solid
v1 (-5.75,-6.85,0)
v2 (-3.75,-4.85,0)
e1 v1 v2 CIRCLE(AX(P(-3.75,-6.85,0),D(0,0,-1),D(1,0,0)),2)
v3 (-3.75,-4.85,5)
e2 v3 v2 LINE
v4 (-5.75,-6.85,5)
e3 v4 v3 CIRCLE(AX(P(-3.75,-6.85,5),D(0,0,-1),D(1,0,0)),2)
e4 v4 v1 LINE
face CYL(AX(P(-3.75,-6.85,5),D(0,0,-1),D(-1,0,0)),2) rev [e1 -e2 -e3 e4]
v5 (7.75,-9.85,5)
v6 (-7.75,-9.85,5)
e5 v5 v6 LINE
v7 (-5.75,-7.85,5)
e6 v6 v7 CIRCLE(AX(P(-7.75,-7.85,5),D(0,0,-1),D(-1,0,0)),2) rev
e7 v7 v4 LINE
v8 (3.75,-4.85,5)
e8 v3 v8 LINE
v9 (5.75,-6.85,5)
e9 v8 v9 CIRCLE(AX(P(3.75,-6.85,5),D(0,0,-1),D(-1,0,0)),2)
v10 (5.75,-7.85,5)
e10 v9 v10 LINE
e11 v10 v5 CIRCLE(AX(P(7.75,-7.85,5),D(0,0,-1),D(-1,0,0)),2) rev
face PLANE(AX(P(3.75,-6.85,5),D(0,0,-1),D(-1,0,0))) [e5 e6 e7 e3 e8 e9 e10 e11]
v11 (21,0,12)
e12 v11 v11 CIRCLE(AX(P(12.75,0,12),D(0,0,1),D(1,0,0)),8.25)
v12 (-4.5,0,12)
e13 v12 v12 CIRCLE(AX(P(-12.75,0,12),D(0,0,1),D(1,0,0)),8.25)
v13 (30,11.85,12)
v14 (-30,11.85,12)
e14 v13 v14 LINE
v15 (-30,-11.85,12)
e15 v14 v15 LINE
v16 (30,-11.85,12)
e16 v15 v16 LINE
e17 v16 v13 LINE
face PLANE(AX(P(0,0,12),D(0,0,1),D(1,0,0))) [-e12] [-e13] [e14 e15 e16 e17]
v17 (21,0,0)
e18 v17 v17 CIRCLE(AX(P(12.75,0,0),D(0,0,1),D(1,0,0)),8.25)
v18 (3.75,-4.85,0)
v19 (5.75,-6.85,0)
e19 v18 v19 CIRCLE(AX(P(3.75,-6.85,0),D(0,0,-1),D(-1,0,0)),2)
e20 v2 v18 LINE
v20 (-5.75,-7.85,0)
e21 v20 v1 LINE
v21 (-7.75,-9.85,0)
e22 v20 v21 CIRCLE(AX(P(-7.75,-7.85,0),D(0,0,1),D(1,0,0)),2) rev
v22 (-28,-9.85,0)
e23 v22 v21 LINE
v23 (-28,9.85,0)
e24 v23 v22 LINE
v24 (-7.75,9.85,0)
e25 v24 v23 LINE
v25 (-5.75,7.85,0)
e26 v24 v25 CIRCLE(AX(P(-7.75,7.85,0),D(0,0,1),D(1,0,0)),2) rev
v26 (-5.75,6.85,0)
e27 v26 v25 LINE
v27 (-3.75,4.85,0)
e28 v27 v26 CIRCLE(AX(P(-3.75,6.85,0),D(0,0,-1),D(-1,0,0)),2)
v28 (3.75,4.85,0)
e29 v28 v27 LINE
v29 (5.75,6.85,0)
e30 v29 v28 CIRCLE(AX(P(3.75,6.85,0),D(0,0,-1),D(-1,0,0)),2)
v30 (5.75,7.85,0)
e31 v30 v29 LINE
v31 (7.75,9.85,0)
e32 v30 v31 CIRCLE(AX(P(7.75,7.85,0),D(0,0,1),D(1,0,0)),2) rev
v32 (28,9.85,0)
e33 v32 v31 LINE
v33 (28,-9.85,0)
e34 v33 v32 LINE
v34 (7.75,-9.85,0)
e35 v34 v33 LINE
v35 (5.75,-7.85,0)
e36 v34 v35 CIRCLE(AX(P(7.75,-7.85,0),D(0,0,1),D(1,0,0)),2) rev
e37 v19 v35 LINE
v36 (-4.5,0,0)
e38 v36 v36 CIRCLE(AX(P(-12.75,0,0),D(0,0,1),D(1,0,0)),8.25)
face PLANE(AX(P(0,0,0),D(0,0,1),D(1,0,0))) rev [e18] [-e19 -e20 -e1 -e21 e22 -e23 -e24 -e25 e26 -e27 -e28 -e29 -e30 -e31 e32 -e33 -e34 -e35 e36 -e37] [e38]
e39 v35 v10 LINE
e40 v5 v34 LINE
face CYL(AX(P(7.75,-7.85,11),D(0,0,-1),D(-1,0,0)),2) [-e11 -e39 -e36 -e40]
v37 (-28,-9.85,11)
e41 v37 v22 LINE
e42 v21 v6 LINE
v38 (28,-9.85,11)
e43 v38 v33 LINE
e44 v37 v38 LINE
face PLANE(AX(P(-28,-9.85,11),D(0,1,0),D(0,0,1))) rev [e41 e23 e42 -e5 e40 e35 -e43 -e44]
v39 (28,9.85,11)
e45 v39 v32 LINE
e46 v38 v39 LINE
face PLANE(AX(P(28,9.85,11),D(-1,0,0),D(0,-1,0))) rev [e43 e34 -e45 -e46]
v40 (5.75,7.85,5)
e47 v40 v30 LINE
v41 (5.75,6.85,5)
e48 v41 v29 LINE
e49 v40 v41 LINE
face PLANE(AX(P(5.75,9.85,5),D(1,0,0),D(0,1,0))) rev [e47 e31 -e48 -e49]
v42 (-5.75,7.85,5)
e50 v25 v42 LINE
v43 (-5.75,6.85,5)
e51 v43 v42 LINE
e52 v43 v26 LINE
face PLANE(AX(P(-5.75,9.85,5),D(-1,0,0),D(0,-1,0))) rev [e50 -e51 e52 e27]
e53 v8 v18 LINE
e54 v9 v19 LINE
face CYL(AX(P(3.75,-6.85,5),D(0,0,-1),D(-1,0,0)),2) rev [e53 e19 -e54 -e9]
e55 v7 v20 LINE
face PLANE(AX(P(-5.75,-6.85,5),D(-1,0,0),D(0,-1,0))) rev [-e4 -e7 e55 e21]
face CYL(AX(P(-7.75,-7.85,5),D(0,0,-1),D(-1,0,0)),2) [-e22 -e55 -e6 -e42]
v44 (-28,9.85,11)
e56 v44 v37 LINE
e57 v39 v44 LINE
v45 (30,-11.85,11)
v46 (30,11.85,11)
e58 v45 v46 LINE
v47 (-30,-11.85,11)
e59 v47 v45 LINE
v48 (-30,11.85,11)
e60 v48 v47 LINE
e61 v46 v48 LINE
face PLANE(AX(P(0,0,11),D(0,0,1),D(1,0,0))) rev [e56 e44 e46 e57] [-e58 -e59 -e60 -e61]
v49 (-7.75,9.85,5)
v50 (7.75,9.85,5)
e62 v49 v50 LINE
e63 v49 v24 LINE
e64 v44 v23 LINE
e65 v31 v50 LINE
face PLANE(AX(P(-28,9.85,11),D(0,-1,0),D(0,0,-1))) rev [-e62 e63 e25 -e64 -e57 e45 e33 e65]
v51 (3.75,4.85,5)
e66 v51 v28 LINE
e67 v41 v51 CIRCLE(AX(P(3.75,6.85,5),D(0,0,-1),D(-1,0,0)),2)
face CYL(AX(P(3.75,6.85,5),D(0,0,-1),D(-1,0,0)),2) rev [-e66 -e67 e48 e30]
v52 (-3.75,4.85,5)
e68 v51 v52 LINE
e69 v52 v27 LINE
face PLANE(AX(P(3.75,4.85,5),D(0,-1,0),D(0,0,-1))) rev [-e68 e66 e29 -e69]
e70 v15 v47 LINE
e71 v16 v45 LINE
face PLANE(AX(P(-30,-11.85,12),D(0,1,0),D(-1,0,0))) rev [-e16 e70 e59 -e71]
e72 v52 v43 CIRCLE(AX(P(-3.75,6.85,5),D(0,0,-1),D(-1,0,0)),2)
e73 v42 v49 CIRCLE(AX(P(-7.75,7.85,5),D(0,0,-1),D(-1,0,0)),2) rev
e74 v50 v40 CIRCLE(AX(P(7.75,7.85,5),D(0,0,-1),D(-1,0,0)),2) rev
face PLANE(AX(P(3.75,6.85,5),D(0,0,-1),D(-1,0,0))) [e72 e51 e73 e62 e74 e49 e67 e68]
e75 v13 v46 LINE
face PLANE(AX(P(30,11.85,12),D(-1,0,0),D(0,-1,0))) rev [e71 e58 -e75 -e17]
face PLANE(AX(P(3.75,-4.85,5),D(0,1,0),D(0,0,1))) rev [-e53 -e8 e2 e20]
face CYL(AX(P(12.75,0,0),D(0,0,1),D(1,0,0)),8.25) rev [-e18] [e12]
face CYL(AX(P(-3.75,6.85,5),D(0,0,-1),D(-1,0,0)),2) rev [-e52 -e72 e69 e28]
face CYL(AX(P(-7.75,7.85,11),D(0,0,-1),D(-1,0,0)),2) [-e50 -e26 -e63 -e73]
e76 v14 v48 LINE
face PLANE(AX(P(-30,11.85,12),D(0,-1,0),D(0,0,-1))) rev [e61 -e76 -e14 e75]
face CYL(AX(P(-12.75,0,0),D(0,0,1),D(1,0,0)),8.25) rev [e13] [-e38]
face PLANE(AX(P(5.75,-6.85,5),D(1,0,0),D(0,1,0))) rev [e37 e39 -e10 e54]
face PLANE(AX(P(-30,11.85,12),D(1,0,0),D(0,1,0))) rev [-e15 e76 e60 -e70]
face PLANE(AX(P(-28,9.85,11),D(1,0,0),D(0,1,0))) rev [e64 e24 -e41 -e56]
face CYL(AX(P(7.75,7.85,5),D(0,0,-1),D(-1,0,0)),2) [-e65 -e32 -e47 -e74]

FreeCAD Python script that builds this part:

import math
import FreeCAD as App
import Part
import Sketcher

V = App.Vector


def edges_at(feature, points):
    """Names of the edges that pass closest to the given points."""
    edges = feature.Shape.Edges
    near = lambda p: min(range(len(edges)), key=lambda i: edges[i].distToShape(Part.Vertex(*p))[0])
    return sorted({f"Edge{near(p) + 1}" for p in points})

doc = App.newDocument("Part")
body = doc.addObject("PartDesign::Body", "Body")

# Sketch on XY plane
sketch1 = body.newObject("Sketcher::SketchObject", "Sketch")
sketch1.AttachmentSupport = (doc.getObject("XY_Plane"), [""])
sketch1.MapMode = "FlatFace"
sketch1.addGeometry(Part.LineSegment(V(-28, 10, 0), V(-28, -10, 0)), False)
sketch1.addGeometry(Part.LineSegment(V(-28, -10, 0), V(28, -10, 0)), False)
sketch1.addGeometry(Part.LineSegment(V(28, -10, 0), V(28, 10, 0)), False)
sketch1.addGeometry(Part.LineSegment(V(28, 10, 0), V(-28, 10, 0)), False)
sketch1.addConstraint(Sketcher.Constraint("Coincident", 0, 2, 1, 1))
sketch1.addConstraint(Sketcher.Constraint("Coincident", 1, 2, 2, 1))
sketch1.addConstraint(Sketcher.Constraint("Coincident", 2, 2, 3, 1))
sketch1.addConstraint(Sketcher.Constraint("Coincident", 3, 2, 0, 1))
sketch1.addConstraint(Sketcher.Constraint("Vertical", 0))
sketch1.addConstraint(Sketcher.Constraint("Horizontal", 1))
sketch1.addConstraint(Sketcher.Constraint("Vertical", 2))
sketch1.addConstraint(Sketcher.Constraint("Horizontal", 3))
sketch1.addConstraint(Sketcher.Constraint("Symmetric", 0, 2, 2, 2, -1, 1))
sketch1.addConstraint(Sketcher.Constraint("DistanceX", 1, 1, 1, 2, 56.0))
sketch1.addConstraint(Sketcher.Constraint("DistanceY", 0, 2, 0, 1, 19.7))
pad1 = body.newObject("PartDesign::Pad", "Pad")
pad1.Profile = sketch1
pad1.Length = 11

# Sketch on XY plane
sketch2 = body.newObject("Sketcher::SketchObject", "Sketch001")
sketch2.AttachmentSupport = (doc.getObject("XY_Plane"), [""])
sketch2.MapMode = "FlatFace"
sketch2.AttachmentOffset = App.Placement(V(0, 0, 11), App.Rotation())
sketch2.addGeometry(Part.LineSegment(V(-30, 12, 0), V(-30, -12, 0)), False)
sketch2.addGeometry(Part.LineSegment(V(-30, -12, 0), V(30, -12, 0)), False)
sketch2.addGeometry(Part.LineSegment(V(30, -12, 0), V(30, 12, 0)), False)
sketch2.addGeometry(Part.LineSegment(V(30, 12, 0), V(-30, 12, 0)), False)
sketch2.addConstraint(Sketcher.Constraint("Coincident", 0, 2, 1, 1))
sketch2.addConstraint(Sketcher.Constraint("Coincident", 1, 2, 2, 1))
sketch2.addConstraint(Sketcher.Constraint("Coincident", 2, 2, 3, 1))
sketch2.addConstraint(Sketcher.Constraint("Coincident", 3, 2, 0, 1))
sketch2.addConstraint(Sketcher.Constraint("Vertical", 0))
sketch2.addConstraint(Sketcher.Constraint("Horizontal", 1))
sketch2.addConstraint(Sketcher.Constraint("Vertical", 2))
sketch2.addConstraint(Sketcher.Constraint("Horizontal", 3))
sketch2.addConstraint(Sketcher.Constraint("Symmetric", 0, 2, 2, 2, -1, 1))
sketch2.addConstraint(Sketcher.Constraint("DistanceX", 1, 1, 1, 2, 60.0))
sketch2.addConstraint(Sketcher.Constraint("DistanceY", 0, 2, 0, 1, 23.7))
pad2 = body.newObject("PartDesign::Pad", "Pad001")
pad2.Profile = sketch2
pad2.Length = 1

# Sketch on XY plane
sketch3 = body.newObject("Sketcher::SketchObject", "Sketch002")
sketch3.AttachmentSupport = (doc.getObject("XY_Plane"), [""])
sketch3.MapMode = "FlatFace"
sketch3.AttachmentOffset = App.Placement(V(0, 0, 12), App.Rotation())
sketch3.addGeometry(Part.Circle(V(-13, 0, 0), V(0, 0, 1), 8), False)
sketch3.addGeometry(Part.Circle(V(13, 0, 0), V(0, 0, 1), 8), False)
sketch3.addConstraint(Sketcher.Constraint("Equal", 0, 1))
sketch3.addConstraint(Sketcher.Constraint("Symmetric", 0, 3, 1, 3, -1, 1))
sketch3.addConstraint(Sketcher.Constraint("PointOnObject", 0, 3, -1))
sketch3.addConstraint(Sketcher.Constraint("Diameter", 0, 16.5))
sketch3.addConstraint(Sketcher.Constraint("DistanceX", 0, 3, 1, 3, 25.5))
pocket1 = body.newObject("PartDesign::Pocket", "Pocket")
pocket1.Profile = sketch3
pocket1.Type = "ThroughAll"

# Sketch on XY plane
sketch4 = body.newObject("Sketcher::SketchObject", "Sketch003")
sketch4.AttachmentSupport = (doc.getObject("XY_Plane"), [""])
sketch4.MapMode = "FlatFace"
sketch4.addGeometry(Part.LineSegment(V(-5.8, 9.8, 0), V(5.8, 9.8, 0)), False)
sketch4.addGeometry(Part.LineSegment(V(5.8, 9.8, 0), V(5.8, 6.8, 0)), False)
sketch4.addGeometry(Part.ArcOfCircle(Part.Circle(V(3.7, 6.9, 0), V(0, 0, 1), 2), math.radians(-90), math.radians(0)), False)
sketch4.addGeometry(Part.LineSegment(V(3.8, 4.8, 0), V(-3.8, 4.8, 0)), False)
sketch4.addGeometry(Part.ArcOfCircle(Part.Circle(V(-3.7, 6.9, 0), V(0, 0, 1), 2), math.radians(-180), math.radians(-90)), False)
sketch4.addGeometry(Part.LineSegment(V(-5.8, 6.8, 0), V(-5.8, 9.8, 0)), False)
sketch4.addConstraint(Sketcher.Constraint("Coincident", 0, 2, 1, 1))
sketch4.addConstraint(Sketcher.Constraint("Tangent", 1, 2, 2, 2))
sketch4.addConstraint(Sketcher.Constraint("Tangent", 2, 1, 3, 1))
sketch4.addConstraint(Sketcher.Constraint("Tangent", 3, 2, 4, 2))
sketch4.addConstraint(Sketcher.Constraint("Tangent", 4, 1, 5, 1))
sketch4.addConstraint(Sketcher.Constraint("Coincident", 5, 2, 0, 1))
sketch4.addConstraint(Sketcher.Constraint("Horizontal", 0))
sketch4.addConstraint(Sketcher.Constraint("Vertical", 1))
sketch4.addConstraint(Sketcher.Constraint("Horizontal", 3))
sketch4.addConstraint(Sketcher.Constraint("Vertical", 5))
sketch4.addConstraint(Sketcher.Constraint("Equal", 2, 4))
sketch4.addConstraint(Sketcher.Constraint("Radius", 2, 2.0))
sketch4.addConstraint(Sketcher.Constraint("DistanceY", 1, 2, 1, 1, 3.0))
sketch4.addConstraint(Sketcher.Constraint("DistanceX", 0, 1, 0, 2, 11.5))
sketch4.addConstraint(Sketcher.Constraint("DistanceX", -1, 1, 2, 3, 3.75))
sketch4.addConstraint(Sketcher.Constraint("DistanceY", -1, 1, 2, 3, 6.85))
pocket2 = body.newObject("PartDesign::Pocket", "Pocket001")
pocket2.Profile = sketch4
pocket2.Length = 5
pocket2.Reversed = True
doc.recompute()

fillet = body.newObject("PartDesign::Fillet", "Fillet")
fillet.Base = (pocket2, edges_at(pocket2, [(5.75, 9.85, 2.5), (-5.75, 9.85, 2.5)]))
fillet.Radius = 2

# Sketch on XY plane
sketch5 = body.newObject("Sketcher::SketchObject", "Sketch004")
sketch5.AttachmentSupport = (doc.getObject("XY_Plane"), [""])
sketch5.MapMode = "FlatFace"
sketch5.addGeometry(Part.LineSegment(V(-3.8, -4.8, 0), V(3.8, -4.8, 0)), False)
sketch5.addGeometry(Part.ArcOfCircle(Part.Circle(V(3.7, -6.9, 0), V(0, 0, 1), 2), math.radians(0), math.radians(90)), False)
sketch5.addGeometry(Part.LineSegment(V(5.8, -6.8, 0), V(5.8, -9.8, 0)), False)
sketch5.addGeometry(Part.LineSegment(V(5.8, -9.8, 0), V(-5.8, -9.8, 0)), False)
sketch5.addGeometry(Part.LineSegment(V(-5.8, -9.8, 0), V(-5.8, -6.8, 0)), False)
sketch5.addGeometry(Part.ArcOfCircle(Part.Circle(V(-3.7, -6.9, 0), V(0, 0, 1), 2), math.radians(90), math.radians(180)), False)
sketch5.addConstraint(Sketcher.Constraint("Tangent", 0, 2, 1, 2))
sketch5.addConstraint(Sketcher.Constraint("Tangent", 1, 1, 2, 1))
sketch5.addConstraint(Sketcher.Constraint("Coincident", 2, 2, 3, 1))
sketch5.addConstraint(Sketcher.Constraint("Coincident", 3, 2, 4, 1))
sketch5.addConstraint(Sketcher.Constraint("Tangent", 4, 2, 5, 2))
sketch5.addConstraint(Sketcher.Constraint("Tangent", 5, 1, 0, 1))
sketch5.addConstraint(Sketcher.Constraint("Horizontal", 0))
sketch5.addConstraint(Sketcher.Constraint("Vertical", 2))
sketch5.addConstraint(Sketcher.Constraint("Horizontal", 3))
sketch5.addConstraint(Sketcher.Constraint("Vertical", 4))
sketch5.addConstraint(Sketcher.Constraint("Equal", 1, 5))
sketch5.addConstraint(Sketcher.Constraint("Radius", 1, 2.0))
sketch5.addConstraint(Sketcher.Constraint("DistanceY", 2, 2, 2, 1, 3.0))
sketch5.addConstraint(Sketcher.Constraint("DistanceX", 0, 1, 0, 2, 7.5))
sketch5.addConstraint(Sketcher.Constraint("DistanceX", -1, 1, 1, 3, 3.75))
sketch5.addConstraint(Sketcher.Constraint("DistanceY", 1, 3, -1, 1, 6.85))
pocket3 = body.newObject("PartDesign::Pocket", "Pocket002")
pocket3.Profile = sketch5
pocket3.Length = 5
pocket3.Reversed = True
doc.recompute()

fillet2 = body.newObject("PartDesign::Fillet", "Fillet001")
fillet2.Base = (pocket3, edges_at(pocket3, [(-5.75, -9.85, 2.5), (5.75, -9.85, 2.5)]))
fillet2.Radius = 2

doc.recompute()
